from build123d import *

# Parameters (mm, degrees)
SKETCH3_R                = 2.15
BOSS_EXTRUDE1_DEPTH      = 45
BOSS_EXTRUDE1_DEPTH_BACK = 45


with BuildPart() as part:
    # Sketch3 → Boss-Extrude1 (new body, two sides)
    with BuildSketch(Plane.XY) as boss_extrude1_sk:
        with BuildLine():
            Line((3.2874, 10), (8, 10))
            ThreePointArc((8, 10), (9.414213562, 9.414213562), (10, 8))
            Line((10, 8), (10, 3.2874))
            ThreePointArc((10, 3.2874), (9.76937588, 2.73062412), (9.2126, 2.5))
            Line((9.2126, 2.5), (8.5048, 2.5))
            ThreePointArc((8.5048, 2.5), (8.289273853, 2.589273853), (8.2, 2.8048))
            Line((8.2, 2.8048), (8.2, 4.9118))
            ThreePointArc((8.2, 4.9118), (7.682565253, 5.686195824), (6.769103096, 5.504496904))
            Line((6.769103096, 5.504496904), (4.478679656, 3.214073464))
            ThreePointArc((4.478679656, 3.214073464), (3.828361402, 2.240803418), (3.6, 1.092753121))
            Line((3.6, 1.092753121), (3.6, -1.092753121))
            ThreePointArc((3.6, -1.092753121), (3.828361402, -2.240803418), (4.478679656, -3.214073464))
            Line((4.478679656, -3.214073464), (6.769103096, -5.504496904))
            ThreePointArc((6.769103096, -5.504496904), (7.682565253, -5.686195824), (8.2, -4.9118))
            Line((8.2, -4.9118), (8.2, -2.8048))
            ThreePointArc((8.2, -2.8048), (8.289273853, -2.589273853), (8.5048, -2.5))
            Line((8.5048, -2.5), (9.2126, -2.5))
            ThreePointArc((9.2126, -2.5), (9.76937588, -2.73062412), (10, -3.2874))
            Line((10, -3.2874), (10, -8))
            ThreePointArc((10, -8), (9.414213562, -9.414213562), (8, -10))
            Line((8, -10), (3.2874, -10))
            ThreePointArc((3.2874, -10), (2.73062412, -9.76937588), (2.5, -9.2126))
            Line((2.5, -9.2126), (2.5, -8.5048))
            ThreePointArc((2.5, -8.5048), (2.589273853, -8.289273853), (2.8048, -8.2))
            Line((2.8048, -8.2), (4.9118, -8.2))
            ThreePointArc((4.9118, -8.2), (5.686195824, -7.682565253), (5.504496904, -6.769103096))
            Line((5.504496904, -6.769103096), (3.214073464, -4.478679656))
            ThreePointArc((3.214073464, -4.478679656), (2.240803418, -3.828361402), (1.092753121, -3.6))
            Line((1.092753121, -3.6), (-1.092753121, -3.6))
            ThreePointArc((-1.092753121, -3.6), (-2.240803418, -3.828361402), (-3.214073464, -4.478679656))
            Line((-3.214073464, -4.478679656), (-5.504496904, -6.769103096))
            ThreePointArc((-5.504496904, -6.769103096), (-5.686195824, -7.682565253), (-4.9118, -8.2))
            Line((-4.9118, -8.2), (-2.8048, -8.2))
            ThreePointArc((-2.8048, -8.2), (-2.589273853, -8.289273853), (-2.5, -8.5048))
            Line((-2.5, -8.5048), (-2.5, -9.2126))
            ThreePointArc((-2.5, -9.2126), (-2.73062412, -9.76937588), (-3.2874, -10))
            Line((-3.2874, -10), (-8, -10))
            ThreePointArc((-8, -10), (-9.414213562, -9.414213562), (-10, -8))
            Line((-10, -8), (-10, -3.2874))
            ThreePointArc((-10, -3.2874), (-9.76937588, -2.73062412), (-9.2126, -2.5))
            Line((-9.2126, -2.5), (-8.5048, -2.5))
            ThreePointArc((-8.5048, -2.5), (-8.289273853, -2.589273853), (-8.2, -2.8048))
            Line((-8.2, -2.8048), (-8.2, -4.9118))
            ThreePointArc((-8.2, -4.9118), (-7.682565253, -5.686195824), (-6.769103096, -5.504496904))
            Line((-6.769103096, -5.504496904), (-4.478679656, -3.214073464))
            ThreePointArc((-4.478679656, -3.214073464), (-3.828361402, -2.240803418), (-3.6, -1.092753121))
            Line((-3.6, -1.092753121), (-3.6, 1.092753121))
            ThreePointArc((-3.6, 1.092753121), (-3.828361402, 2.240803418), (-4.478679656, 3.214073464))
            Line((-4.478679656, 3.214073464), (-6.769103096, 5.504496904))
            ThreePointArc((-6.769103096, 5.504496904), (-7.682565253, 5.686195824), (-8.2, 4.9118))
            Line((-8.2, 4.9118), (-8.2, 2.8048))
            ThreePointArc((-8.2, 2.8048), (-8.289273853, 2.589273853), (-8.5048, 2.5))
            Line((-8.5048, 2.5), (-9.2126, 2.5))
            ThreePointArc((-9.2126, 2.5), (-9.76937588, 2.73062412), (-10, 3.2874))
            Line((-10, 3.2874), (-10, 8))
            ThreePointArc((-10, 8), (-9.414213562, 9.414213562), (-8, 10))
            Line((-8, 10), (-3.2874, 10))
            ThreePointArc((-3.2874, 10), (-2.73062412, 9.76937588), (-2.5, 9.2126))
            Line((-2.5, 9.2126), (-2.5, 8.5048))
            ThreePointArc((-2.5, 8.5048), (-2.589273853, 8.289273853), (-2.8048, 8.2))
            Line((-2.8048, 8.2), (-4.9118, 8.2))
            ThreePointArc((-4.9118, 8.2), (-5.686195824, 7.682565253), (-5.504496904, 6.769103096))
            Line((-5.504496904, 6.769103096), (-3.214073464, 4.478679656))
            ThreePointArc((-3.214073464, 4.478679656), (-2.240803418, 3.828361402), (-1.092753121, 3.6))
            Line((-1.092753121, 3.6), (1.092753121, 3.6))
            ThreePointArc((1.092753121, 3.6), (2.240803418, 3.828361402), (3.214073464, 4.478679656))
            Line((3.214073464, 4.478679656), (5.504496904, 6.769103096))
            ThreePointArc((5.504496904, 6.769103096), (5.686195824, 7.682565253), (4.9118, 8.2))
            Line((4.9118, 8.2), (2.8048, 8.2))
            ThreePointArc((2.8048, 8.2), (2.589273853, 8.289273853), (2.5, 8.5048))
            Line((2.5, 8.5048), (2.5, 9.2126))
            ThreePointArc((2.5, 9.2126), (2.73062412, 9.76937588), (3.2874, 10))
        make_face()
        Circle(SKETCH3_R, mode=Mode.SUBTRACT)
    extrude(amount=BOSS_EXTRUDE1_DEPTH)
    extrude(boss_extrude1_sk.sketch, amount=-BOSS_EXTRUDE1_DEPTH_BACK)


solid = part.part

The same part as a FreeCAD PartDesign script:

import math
import FreeCAD as App
import Part
import Sketcher

V = App.Vector
Q = App.Units.Quantity

doc = App.newDocument("Part")
params = doc.addObject("Spreadsheet::Sheet", "Params")
for row, (alias, value) in enumerate([
    ("sketch1_radius", "3 mm"),
    ("sketch1_radius2", "2 mm"),
    ("sketch1_diameter", "4.3 mm"),
    ("pad1_length", "45 mm"),
    ("pad1_length2", "45 mm"),
], start=1):
    params.set(f"A{row}", alias)
    params.set(f"B{row}", "=" + value)
    params.setAlias(f"B{row}", alias)

body = doc.addObject("PartDesign::Body", "Body")

sketch1 = body.newObject("Sketcher::SketchObject", "Sketch")
sketch1.AttachmentSupport = (doc.getObject("XY_Plane"), [""])
sketch1.MapMode = "FlatFace"
sketch1.addGeometry([
    Part.LineSegment(V(8, 10, 0), V(3.29, 10, 0)),
    Part.ArcOfCircle(Part.Circle(V(3.29, 9.21, 0), V(0, 0, 1), 0.79), math.radians(90), math.radians(180)),
    Part.LineSegment(V(2.5, 9.21, 0), V(2.5, 8.5, 0)),
    Part.ArcOfCircle(Part.Circle(V(2.8, 8.5, 0), V(0, 0, 1), 0.3), math.radians(180), math.radians(270)),
    Part.LineSegment(V(2.8, 8.2, 0), V(4.91, 8.2, 0)),
    Part.ArcOfCircle(Part.Circle(V(4.91, 7.36, 0), V(0, 0, 1), 0.84), math.radians(-45), math.radians(90)),
    Part.LineSegment(V(5.5, 6.77, 0), V(3.21, 4.48, 0)),
    Part.ArcOfCircle(Part.Circle(V(1.09, 6.6, 0), V(0, 0, 1), 3), math.radians(-90), math.radians(-45)),
    Part.LineSegment(V(1.09, 3.6, 0), V(-1.09, 3.6, 0)),
    Part.ArcOfCircle(Part.Circle(V(-1.09, 6.6, 0), V(0, 0, 1), 3), math.radians(-135), math.radians(-90)),
    Part.LineSegment(V(-3.21, 4.48, 0), V(-5.5, 6.77, 0)),
    Part.ArcOfCircle(Part.Circle(V(-4.91, 7.36, 0), V(0, 0, 1), 0.84), math.radians(90), math.radians(225)),
    Part.LineSegment(V(-4.91, 8.2, 0), V(-2.8, 8.2, 0)),
    Part.ArcOfCircle(Part.Circle(V(-2.8, 8.5, 0), V(0, 0, 1), 0.3), math.radians(-90), math.radians(0)),
    Part.LineSegment(V(-2.5, 8.5, 0), V(-2.5, 9.21, 0)),
    Part.ArcOfCircle(Part.Circle(V(-3.29, 9.21, 0), V(0, 0, 1), 0.79), math.radians(0), math.radians(90)),
    Part.LineSegment(V(-3.29, 10, 0), V(-8, 10, 0)),
    Part.ArcOfCircle(Part.Circle(V(-8, 8, 0), V(0, 0, 1), 2), math.radians(90), math.radians(180)),
    Part.LineSegment(V(-10, 8, 0), V(-10, 3.29, 0)),
    Part.ArcOfCircle(Part.Circle(V(-9.21, 3.29, 0), V(0, 0, 1), 0.79), math.radians(180), math.radians(270)),
    Part.LineSegment(V(-9.21, 2.5, 0), V(-8.5, 2.5, 0)),
    Part.ArcOfCircle(Part.Circle(V(-8.5, 2.8, 0), V(0, 0, 1), 0.3), math.radians(-90), math.radians(0)),
    Part.LineSegment(V(-8.2, 2.8, 0), V(-8.2, 4.91, 0)),
    Part.ArcOfCircle(Part.Circle(V(-7.36, 4.91, 0), V(0, 0, 1), 0.84), math.radians(45), math.radians(180)),
    Part.LineSegment(V(-6.77, 5.5, 0), V(-4.48, 3.21, 0)),
    Part.ArcOfCircle(Part.Circle(V(-6.6, 1.09, 0), V(0, 0, 1), 3), math.radians(0), math.radians(45)),
    Part.LineSegment(V(-3.6, 1.09, 0), V(-3.6, -1.09, 0)),
    Part.ArcOfCircle(Part.Circle(V(-6.6, -1.09, 0), V(0, 0, 1), 3), math.radians(-45), math.radians(0)),
    Part.LineSegment(V(-4.48, -3.21, 0), V(-6.77, -5.5, 0)),
    Part.ArcOfCircle(Part.Circle(V(-7.36, -4.91, 0), V(0, 0, 1), 0.84), math.radians(180), math.radians(315)),
    Part.LineSegment(V(-8.2, -4.91, 0), V(-8.2, -2.8, 0)),
    Part.ArcOfCircle(Part.Circle(V(-8.5, -2.8, 0), V(0, 0, 1), 0.3), math.radians(0), math.radians(90)),
    Part.LineSegment(V(-8.5, -2.5, 0), V(-9.21, -2.5, 0)),
    Part.ArcOfCircle(Part.Circle(V(-9.21, -3.29, 0), V(0, 0, 1), 0.79), math.radians(90), math.radians(180)),
    Part.LineSegment(V(-10, -3.29, 0), V(-10, -8, 0)),
    Part.ArcOfCircle(Part.Circle(V(-8, -8, 0), V(0, 0, 1), 2), math.radians(-180), math.radians(-90)),
    Part.LineSegment(V(-8, -10, 0), V(-3.29, -10, 0)),
    Part.ArcOfCircle(Part.Circle(V(-3.29, -9.21, 0), V(0, 0, 1), 0.79), math.radians(-90), math.radians(0)),
    Part.LineSegment(V(-2.5, -9.21, 0), V(-2.5, -8.5, 0)),
    Part.ArcOfCircle(Part.Circle(V(-2.8, -8.5, 0), V(0, 0, 1), 0.3), math.radians(0), math.radians(90)),
    Part.LineSegment(V(-2.8, -8.2, 0), V(-4.91, -8.2, 0)),
    Part.ArcOfCircle(Part.Circle(V(-4.91, -7.36, 0), V(0, 0, 1), 0.84), math.radians(135), math.radians(270)),
    Part.LineSegment(V(-5.5, -6.77, 0), V(-3.21, -4.48, 0)),
    Part.ArcOfCircle(Part.Circle(V(-1.09, -6.6, 0), V(0, 0, 1), 3), math.radians(90), math.radians(135)),
    Part.LineSegment(V(-1.09, -3.6, 0), V(1.09, -3.6, 0)),
    Part.ArcOfCircle(Part.Circle(V(1.09, -6.6, 0), V(0, 0, 1), 3), math.radians(45), math.radians(90)),
    Part.LineSegment(V(3.21, -4.48, 0), V(5.5, -6.77, 0)),
    Part.ArcOfCircle(Part.Circle(V(4.91, -7.36, 0), V(0, 0, 1), 0.84), math.radians(-90), math.radians(45)),
    Part.LineSegment(V(4.91, -8.2, 0), V(2.8, -8.2, 0)),
    Part.ArcOfCircle(Part.Circle(V(2.8, -8.5, 0), V(0, 0, 1), 0.3), math.radians(90), math.radians(180)),
    Part.LineSegment(V(2.5, -8.5, 0), V(2.5, -9.21, 0)),
    Part.ArcOfCircle(Part.Circle(V(3.29, -9.21, 0), V(0, 0, 1), 0.79), math.radians(180), math.radians(270)),
    Part.LineSegment(V(3.29, -10, 0), V(8, -10, 0)),
    Part.ArcOfCircle(Part.Circle(V(8, -8, 0), V(0, 0, 1), 2), math.radians(-90), math.radians(0)),
    Part.LineSegment(V(10, -8, 0), V(10, -3.29, 0)),
    Part.ArcOfCircle(Part.Circle(V(9.21, -3.29, 0), V(0, 0, 1), 0.79), math.radians(0), math.radians(90)),
    Part.LineSegment(V(9.21, -2.5, 0), V(8.5, -2.5, 0)),
    Part.ArcOfCircle(Part.Circle(V(8.5, -2.8, 0), V(0, 0, 1), 0.3), math.radians(90), math.radians(180)),
    Part.LineSegment(V(8.2, -2.8, 0), V(8.2, -4.91, 0)),
    Part.ArcOfCircle(Part.Circle(V(7.36, -4.91, 0), V(0, 0, 1), 0.84), math.radians(-135), math.radians(0)),
    Part.LineSegment(V(6.77, -5.5, 0), V(4.48, -3.21, 0)),
    Part.ArcOfCircle(Part.Circle(V(6.6, -1.09, 0), V(0, 0, 1), 3), math.radians(180), math.radians(225)),
    Part.LineSegment(V(3.6, -1.09, 0), V(3.6, 1.09, 0)),
    Part.ArcOfCircle(Part.Circle(V(6.6, 1.09, 0), V(0, 0, 1), 3), math.radians(135), math.radians(180)),
    Part.LineSegment(V(4.48, 3.21, 0), V(6.77, 5.5, 0)),
    Part.ArcOfCircle(Part.Circle(V(7.36, 4.91, 0), V(0, 0, 1), 0.84), math.radians(0), math.radians(135)),
    Part.LineSegment(V(8.2, 4.91, 0), V(8.2, 2.8, 0)),
    Part.ArcOfCircle(Part.Circle(V(8.5, 2.8, 0), V(0, 0, 1), 0.3), math.radians(180), math.radians(270)),
    Part.LineSegment(V(8.5, 2.5, 0), V(9.21, 2.5, 0)),
    Part.ArcOfCircle(Part.Circle(V(9.21, 3.29, 0), V(0, 0, 1), 0.79), math.radians(-90), math.radians(0)),
    Part.LineSegment(V(10, 3.29, 0), V(10, 8, 0)),
    Part.ArcOfCircle(Part.Circle(V(8, 8, 0), V(0, 0, 1), 2), math.radians(0), math.radians(90)),
    Part.Circle(V(0, 0, 0), V(0, 0, 1), 2.15),
], False)
sketch1.addConstraint([
    Sketcher.Constraint("Tangent", 0, 2, 1, 1),
    Sketcher.Constraint("Tangent", 1, 2, 2, 1),
    Sketcher.Constraint("Tangent", 2, 2, 3, 1),
    Sketcher.Constraint("Tangent", 3, 2, 4, 1),
    Sketcher.Constraint("Tangent", 4, 2, 5, 2),
    Sketcher.Constraint("Tangent", 5, 1, 6, 1),
    Sketcher.Constraint("Tangent", 6, 2, 7, 2),
    Sketcher.Constraint("Tangent", 7, 1, 8, 1),
    Sketcher.Constraint("Tangent", 8, 2, 9, 2),
    Sketcher.Constraint("Tangent", 9, 1, 10, 1),
    Sketcher.Constraint("Tangent", 10, 2, 11, 2),
    Sketcher.Constraint("Tangent", 11, 1, 12, 1),
    Sketcher.Constraint("Tangent", 12, 2, 13, 1),
    Sketcher.Constraint("Tangent", 13, 2, 14, 1),
    Sketcher.Constraint("Tangent", 14, 2, 15, 1),
    Sketcher.Constraint("Tangent", 15, 2, 16, 1),
    Sketcher.Constraint("Tangent", 16, 2, 17, 1),
    Sketcher.Constraint("Tangent", 17, 2, 18, 1),
    Sketcher.Constraint("Tangent", 18, 2, 19, 1),
    Sketcher.Constraint("Tangent", 19, 2, 20, 1),
    Sketcher.Constraint("Tangent", 20, 2, 21, 1),
    Sketcher.Constraint("Tangent", 21, 2, 22, 1),
    Sketcher.Constraint("Tangent", 22, 2, 23, 2),
    Sketcher.Constraint("Tangent", 23, 1, 24, 1),
    Sketcher.Constraint("Tangent", 24, 2, 25, 2),
    Sketcher.Constraint("Tangent", 25, 1, 26, 1),
    Sketcher.Constraint("Tangent", 26, 2, 27, 2),
    Sketcher.Constraint("Tangent", 27, 1, 28, 1),
    Sketcher.Constraint("Tangent", 28, 2, 29, 2),
    Sketcher.Constraint("Tangent", 29, 1, 30, 1),
    Sketcher.Constraint("Tangent", 30, 2, 31, 1),
    Sketcher.Constraint("Tangent", 31, 2, 32, 1),
    Sketcher.Constraint("Tangent", 32, 2, 33, 1),
    Sketcher.Constraint("Tangent", 33, 2, 34, 1),
    Sketcher.Constraint("Tangent", 34, 2, 35, 1),
    Sketcher.Constraint("Tangent", 35, 2, 36, 1),
    Sketcher.Constraint("Tangent", 36, 2, 37, 1),
    Sketcher.Constraint("Tangent", 37, 2, 38, 1),
    Sketcher.Constraint("Tangent", 38, 2, 39, 1),
    Sketcher.Constraint("Tangent", 39, 2, 40, 1),
    Sketcher.Constraint("Tangent", 40, 2, 41, 2),
    Sketcher.Constraint("Tangent", 41, 1, 42, 1),
    Sketcher.Constraint("Tangent", 42, 2, 43, 2),
    Sketcher.Constraint("Tangent", 43, 1, 44, 1),
    Sketcher.Constraint("Tangent", 44, 2, 45, 2),
    Sketcher.Constraint("Tangent", 45, 1, 46, 1),
    Sketcher.Constraint("Tangent", 46, 2, 47, 2),
    Sketcher.Constraint("Tangent", 47, 1, 48, 1),
    Sketcher.Constraint("Tangent", 48, 2, 49, 1),
    Sketcher.Constraint("Tangent", 49, 2, 50, 1),
    Sketcher.Constraint("Tangent", 50, 2, 51, 1),
    Sketcher.Constraint("Tangent", 51, 2, 52, 1),
    Sketcher.Constraint("Tangent", 52, 2, 53, 1),
    Sketcher.Constraint("Tangent", 53, 2, 54, 1),
    Sketcher.Constraint("Tangent", 54, 2, 55, 1),
    Sketcher.Constraint("Tangent", 55, 2, 56, 1),
    Sketcher.Constraint("Tangent", 56, 2, 57, 1),
    Sketcher.Constraint("Tangent", 57, 2, 58, 1),
    Sketcher.Constraint("Tangent", 58, 2, 59, 2),
    Sketcher.Constraint("Tangent", 59, 1, 60, 1),
    Sketcher.Constraint("Tangent", 60, 2, 61, 2),
    Sketcher.Constraint("Tangent", 61, 1, 62, 1),
    Sketcher.Constraint("Tangent", 62, 2, 63, 2),
    Sketcher.Constraint("Tangent", 63, 1, 64, 1),
    Sketcher.Constraint("Tangent", 64, 2, 65, 2),
    Sketcher.Constraint("Tangent", 65, 1, 66, 1),
    Sketcher.Constraint("Tangent", 66, 2, 67, 1),
    Sketcher.Constraint("Tangent", 67, 2, 68, 1),
    Sketcher.Constraint("Tangent", 68, 2, 69, 1),
    Sketcher.Constraint("Tangent", 69, 2, 70, 1),
    Sketcher.Constraint("Tangent", 70, 2, 71, 1),
    Sketcher.Constraint("Tangent", 71, 2, 0, 1),
    Sketcher.Constraint("Horizontal", 0),
    Sketcher.Constraint("Vertical", 2),
    Sketcher.Constraint("Horizontal", 4),
    Sketcher.Constraint("Horizontal", 8),
    Sketcher.Constraint("Horizontal", 12),
    Sketcher.Constraint("Vertical", 14),
    Sketcher.Constraint("Horizontal", 16),
    Sketcher.Constraint("Vertical", 18),
    Sketcher.Constraint("Horizontal", 20),
    Sketcher.Constraint("Vertical", 22),
    Sketcher.Constraint("Vertical", 26),
    Sketcher.Constraint("Vertical", 30),
    Sketcher.Constraint("Horizontal", 32),
    Sketcher.Constraint("Vertical", 34),
    Sketcher.Constraint("Horizontal", 36),
    Sketcher.Constraint("Vertical", 38),
    Sketcher.Constraint("Horizontal", 40),
    Sketcher.Constraint("Horizontal", 44),
    Sketcher.Constraint("Horizontal", 48),
    Sketcher.Constraint("Vertical", 50),
    Sketcher.Constraint("Horizontal", 52),
    Sketcher.Constraint("Vertical", 54),
    Sketcher.Constraint("Horizontal", 56),
    Sketcher.Constraint("Vertical", 58),
    Sketcher.Constraint("Vertical", 62),
    Sketcher.Constraint("Vertical", 66),
    Sketcher.Constraint("Horizontal", 68),
    Sketcher.Constraint("Vertical", 70),
    Sketcher.Constraint("Coincident", 72, 3, -1, 1),
    Sketcher.Constraint("Equal", 7, 9),
    Sketcher.Constraint("Equal", 5, 11),
    Sketcher.Constraint("Equal", 3, 13),
    Sketcher.Constraint("Equal", 1, 15),
    Sketcher.Constraint("Equal", 15, 19),
    Sketcher.Constraint("Equal", 13, 21),
    Sketcher.Constraint("Equal", 11, 23),
    Sketcher.Constraint("Equal", 9, 25),
    Sketcher.Constraint("Equal", 25, 27),
    Sketcher.Constraint("Equal", 23, 29),
    Sketcher.Constraint("Equal", 21, 31),
    Sketcher.Constraint("Equal", 19, 33),
    Sketcher.Constraint("Equal", 17, 35),
    Sketcher.Constraint("Equal", 33, 37),
    Sketcher.Constraint("Equal", 31, 39),
    Sketcher.Constraint("Equal", 29, 41),
    Sketcher.Constraint("Equal", 27, 43),
    Sketcher.Constraint("Equal", 43, 45),
    Sketcher.Constraint("Equal", 41, 47),
    Sketcher.Constraint("Equal", 39, 49),
    Sketcher.Constraint("Equal", 37, 51),
    Sketcher.Constraint("Equal", 35, 53),
    Sketcher.Constraint("Equal", 51, 55),
    Sketcher.Constraint("Equal", 49, 57),
    Sketcher.Constraint("Equal", 47, 59),
    Sketcher.Constraint("Equal", 45, 61),
    Sketcher.Constraint("Equal", 61, 63),
    Sketcher.Constraint("Equal", 59, 65),
    Sketcher.Constraint("Equal", 57, 67),
    Sketcher.Constraint("Equal", 55, 69),
    Sketcher.Constraint("Equal", 53, 71),
    Sketcher.Constraint("Symmetric", 1, 3, 37, 3, -1, 1),
    Sketcher.Constraint("Symmetric", 5, 3, 41, 3, -1, 1),
    Sketcher.Constraint("Symmetric", 7, 3, 43, 3, -1, 1),
    Sketcher.Constraint("Symmetric", 11, 3, 47, 3, -1, 1),
    Sketcher.Constraint("Symmetric", 15, 3, 51, 3, -1, 1),
    Sketcher.Constraint("Symmetric", 19, 3, 55, 3, -1, 1),
    Sketcher.Constraint("Symmetric", 23, 3, 59, 3, -1, 1),
    Sketcher.Constraint("Symmetric", 25, 3, 61, 3, -1, 1),
    Sketcher.Constraint("Symmetric", 29, 3, 65, 3, -1, 1),
    Sketcher.Constraint("Symmetric", 33, 3, 69, 3, -1, 1),
    Sketcher.Constraint("Symmetric", 5, 3, 11, 3, -2),
    Sketcher.Constraint("Symmetric", 1, 3, 15, 3, -2),
    Sketcher.Constraint("Symmetric", 33, 3, 55, 3, -2),
    Sketcher.Constraint("Symmetric", 29, 3, 59, 3, -2),
    Sketcher.Constraint("Perpendicular", 6, 10),
    Sketcher.Constraint("Parallel", 10, 24),
    Sketcher.Constraint("Perpendicular", 24, 28),
    Sketcher.Constraint("Perpendicular", 42, 46),
    Sketcher.Constraint("Perpendicular", 60, 64),
    Sketcher.Constraint("Horizontal", 27, 3, 61, 3),
    Sketcher.Constraint("Equal", 68, 2),
    Sketcher.Constraint("Equal", 52, 18),
    Sketcher.Constraint("Equal", 48, 22),
    Sketcher.Constraint("Equal", 44, 26),
    Sketcher.Constraint("Equal", 10, 24),
    Sketcher.Constraint("Radius", 7, Q("3 mm")),
    Sketcher.Constraint("Radius", 17, Q("2 mm")),
    Sketcher.Constraint("Diameter", 72, Q("4.3 mm")),
    Sketcher.Constraint("DistanceX", 17, 3, -1, 1, Q("8 mm")),
    Sketcher.Constraint("DistanceY", -1, 1, 7, 3, Q("6.6 mm")),
    Sketcher.Constraint("DistanceX", -1, 1, 1, 2, Q("2.5 mm")),
    Sketcher.Constraint("DistanceY", -1, 1, 3, 2, Q("8.2 mm")),
    Sketcher.Constraint("Radius", 1, Q("0.7874 mm")),
    Sketcher.Constraint("Radius", 3, Q("0.3048 mm")),
    Sketcher.Constraint("Radius", 5, Q("0.8382 mm")),
    Sketcher.Constraint("DistanceX", 4, 1, 4, 2, Q("2.107 mm")),
])
sketch1.setExpression("Constraints[157]", "Params.sketch1_radius")
sketch1.setExpression("Constraints[158]", "Params.sketch1_radius2")
sketch1.setExpression("Constraints[159]", "Params.sketch1_diameter")
pad1 = body.newObject("PartDesign::Pad", "Pad")
pad1.Profile = sketch1
pad1.Type = "TwoLengths"
pad1.setExpression("Length", "Params.pad1_length")
pad1.setExpression("Length2", "Params.pad1_length2")

doc.recompute()
